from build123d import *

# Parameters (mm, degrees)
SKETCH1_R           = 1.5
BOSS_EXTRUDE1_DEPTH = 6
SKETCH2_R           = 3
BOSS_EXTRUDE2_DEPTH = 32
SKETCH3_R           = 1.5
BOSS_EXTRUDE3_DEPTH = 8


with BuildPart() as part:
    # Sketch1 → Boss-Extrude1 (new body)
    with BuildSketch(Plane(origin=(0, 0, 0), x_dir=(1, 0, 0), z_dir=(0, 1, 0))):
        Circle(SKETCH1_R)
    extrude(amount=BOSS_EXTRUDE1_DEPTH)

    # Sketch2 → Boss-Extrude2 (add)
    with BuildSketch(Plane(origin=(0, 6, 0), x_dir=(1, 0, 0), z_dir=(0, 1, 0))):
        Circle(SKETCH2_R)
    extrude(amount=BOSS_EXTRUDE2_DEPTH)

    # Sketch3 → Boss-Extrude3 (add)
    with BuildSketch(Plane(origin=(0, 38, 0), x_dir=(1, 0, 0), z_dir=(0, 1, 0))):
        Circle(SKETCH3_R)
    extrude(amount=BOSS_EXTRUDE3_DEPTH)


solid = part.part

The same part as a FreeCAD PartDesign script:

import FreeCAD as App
import Part
import Sketcher
from FreeCAD import Vector
Q = App.Units.Quantity

doc = App.newDocument("Part")
body = doc.addObject("PartDesign::Body", "Body")

# Sketch on XZ plane
sketch1 = doc.addObject("Sketcher::SketchObject", "Sketch")
body.addObject(sketch1)
sketch1.AttachmentSupport = (doc.XZ_Plane, [""])
sketch1.MapMode = "FlatFace"
sketch1.addGeometry(Part.Circle(Vector(0, 0, 0), Vector(0, 0, 1), 1.5), False)
sketch1.addConstraint([
    Sketcher.Constraint("Coincident", 0, 3, -1, 1),
    Sketcher.Constraint("Diameter", 0, Q("3 mm")),
])
pad1 = doc.addObject("PartDesign::Pad", "Pad")
body.addObject(pad1)
pad1.Profile = sketch1
pad1.Length = 6
pad1.Reversed = True

# Sketch on XZ plane
sketch2 = doc.addObject("Sketcher::SketchObject", "Sketch001")
body.addObject(sketch2)
sketch2.AttachmentSupport = (doc.XZ_Plane, [""])
sketch2.MapMode = "FlatFace"
sketch2.AttachmentOffset = App.Placement(Vector(0, 0, -6), App.Rotation())
sketch2.addGeometry(Part.Circle(Vector(0, 0, 0), Vector(0, 0, 1), 3), False)
sketch2.addConstraint([
    Sketcher.Constraint("Coincident", 0, 3, -1, 1),
    Sketcher.Constraint("Diameter", 0, Q("6 mm")),
])
pad2 = doc.addObject("PartDesign::Pad", "Pad001")
body.addObject(pad2)
pad2.Profile = sketch2
pad2.Length = 32
pad2.Reversed = True

# Sketch on XZ plane
sketch3 = doc.addObject("Sketcher::SketchObject", "Sketch002")
body.addObject(sketch3)
sketch3.AttachmentSupport = (doc.XZ_Plane, [""])
sketch3.MapMode = "FlatFace"
sketch3.AttachmentOffset = App.Placement(Vector(0, 0, -38), App.Rotation())
sketch3.addGeometry(Part.Circle(Vector(0, 0, 0), Vector(0, 0, 1), 1.5), False)
sketch3.addConstraint([
    Sketcher.Constraint("Coincident", 0, 3, -1, 1),
    Sketcher.Constraint("Diameter", 0, Q("3 mm")),
])
pad3 = doc.addObject("PartDesign::Pad", "Pad002")
body.addObject(pad3)
pad3.Profile = sketch3
pad3.Length = 8
pad3.Reversed = True

doc.recompute()
